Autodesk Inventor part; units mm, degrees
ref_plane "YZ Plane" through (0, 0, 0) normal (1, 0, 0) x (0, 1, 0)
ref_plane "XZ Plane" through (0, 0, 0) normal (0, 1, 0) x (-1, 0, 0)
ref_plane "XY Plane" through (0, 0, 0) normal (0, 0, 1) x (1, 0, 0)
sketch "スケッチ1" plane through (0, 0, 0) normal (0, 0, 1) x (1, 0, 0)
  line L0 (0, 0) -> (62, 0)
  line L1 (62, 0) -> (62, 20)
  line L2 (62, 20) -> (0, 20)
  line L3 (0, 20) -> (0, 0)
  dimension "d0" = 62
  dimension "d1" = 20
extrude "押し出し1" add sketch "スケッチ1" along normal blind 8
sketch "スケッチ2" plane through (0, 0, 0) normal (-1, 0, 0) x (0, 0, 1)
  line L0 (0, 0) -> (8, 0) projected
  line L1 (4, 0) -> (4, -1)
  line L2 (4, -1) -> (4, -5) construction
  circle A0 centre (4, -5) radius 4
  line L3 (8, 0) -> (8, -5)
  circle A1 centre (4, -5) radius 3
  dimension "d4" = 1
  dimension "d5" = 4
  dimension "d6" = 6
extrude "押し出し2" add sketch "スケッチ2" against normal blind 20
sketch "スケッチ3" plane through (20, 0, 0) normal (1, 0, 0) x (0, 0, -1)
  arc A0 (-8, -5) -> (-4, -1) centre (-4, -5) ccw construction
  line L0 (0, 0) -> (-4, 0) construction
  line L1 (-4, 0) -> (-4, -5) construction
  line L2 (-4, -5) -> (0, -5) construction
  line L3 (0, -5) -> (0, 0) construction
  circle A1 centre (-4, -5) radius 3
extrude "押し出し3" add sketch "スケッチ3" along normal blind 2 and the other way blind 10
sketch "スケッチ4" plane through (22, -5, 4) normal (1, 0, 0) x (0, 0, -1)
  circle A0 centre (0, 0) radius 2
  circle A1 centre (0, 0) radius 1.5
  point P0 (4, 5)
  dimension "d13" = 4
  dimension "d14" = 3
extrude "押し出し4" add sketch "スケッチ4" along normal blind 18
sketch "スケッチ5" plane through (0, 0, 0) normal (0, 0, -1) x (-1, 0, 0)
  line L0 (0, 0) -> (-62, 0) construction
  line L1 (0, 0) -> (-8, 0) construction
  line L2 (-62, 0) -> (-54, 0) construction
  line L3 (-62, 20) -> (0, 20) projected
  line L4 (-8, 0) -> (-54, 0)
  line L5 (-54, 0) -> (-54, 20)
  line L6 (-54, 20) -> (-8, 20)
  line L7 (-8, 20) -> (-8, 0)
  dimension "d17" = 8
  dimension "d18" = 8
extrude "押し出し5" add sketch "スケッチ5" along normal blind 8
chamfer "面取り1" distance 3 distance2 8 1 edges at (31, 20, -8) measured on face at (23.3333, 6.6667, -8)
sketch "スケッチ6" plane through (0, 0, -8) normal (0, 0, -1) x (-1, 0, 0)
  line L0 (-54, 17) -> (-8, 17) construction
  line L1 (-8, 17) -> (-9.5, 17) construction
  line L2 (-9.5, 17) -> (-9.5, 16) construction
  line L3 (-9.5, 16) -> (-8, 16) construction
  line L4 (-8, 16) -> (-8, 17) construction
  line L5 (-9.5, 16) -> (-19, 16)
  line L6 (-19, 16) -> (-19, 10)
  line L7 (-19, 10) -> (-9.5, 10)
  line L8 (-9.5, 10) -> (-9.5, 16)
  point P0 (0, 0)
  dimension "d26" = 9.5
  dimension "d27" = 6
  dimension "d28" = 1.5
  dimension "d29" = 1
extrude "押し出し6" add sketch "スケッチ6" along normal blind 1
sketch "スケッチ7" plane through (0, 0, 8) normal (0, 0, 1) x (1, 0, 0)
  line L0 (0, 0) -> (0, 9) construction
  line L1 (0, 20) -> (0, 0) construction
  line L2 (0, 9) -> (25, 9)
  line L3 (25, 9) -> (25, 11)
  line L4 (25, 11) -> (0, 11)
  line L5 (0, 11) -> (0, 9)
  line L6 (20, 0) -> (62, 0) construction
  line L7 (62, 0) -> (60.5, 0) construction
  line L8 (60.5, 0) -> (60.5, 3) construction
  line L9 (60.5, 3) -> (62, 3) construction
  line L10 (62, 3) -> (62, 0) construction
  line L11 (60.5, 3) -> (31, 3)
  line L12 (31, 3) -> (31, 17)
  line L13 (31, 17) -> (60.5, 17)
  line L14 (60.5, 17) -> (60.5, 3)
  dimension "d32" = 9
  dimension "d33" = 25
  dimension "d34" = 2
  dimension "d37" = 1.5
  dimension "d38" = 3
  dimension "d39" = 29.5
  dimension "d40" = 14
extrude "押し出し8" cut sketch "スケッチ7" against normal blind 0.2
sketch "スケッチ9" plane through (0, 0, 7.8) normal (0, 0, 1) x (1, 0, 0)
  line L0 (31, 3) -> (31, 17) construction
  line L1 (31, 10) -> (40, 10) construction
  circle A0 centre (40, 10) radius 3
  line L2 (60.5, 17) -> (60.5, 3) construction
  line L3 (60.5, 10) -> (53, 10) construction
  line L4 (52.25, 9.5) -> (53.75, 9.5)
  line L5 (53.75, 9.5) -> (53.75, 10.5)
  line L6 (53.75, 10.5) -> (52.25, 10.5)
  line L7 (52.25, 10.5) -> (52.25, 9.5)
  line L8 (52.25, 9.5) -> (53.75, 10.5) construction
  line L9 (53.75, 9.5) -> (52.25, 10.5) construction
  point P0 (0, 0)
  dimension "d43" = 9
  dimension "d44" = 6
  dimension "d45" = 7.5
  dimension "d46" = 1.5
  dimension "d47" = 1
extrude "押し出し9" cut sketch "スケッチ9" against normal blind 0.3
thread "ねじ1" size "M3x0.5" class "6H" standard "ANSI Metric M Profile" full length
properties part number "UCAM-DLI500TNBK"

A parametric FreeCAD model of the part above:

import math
import FreeCAD as App
import Part
import Sketcher


def edges_at(feature, points):
    """Names of the edges that pass closest to the given points."""
    edges = feature.Shape.Edges
    near = lambda p: min(range(len(edges)), key=lambda i: edges[i].distToShape(Part.Vertex(*p))[0])
    return sorted({f"Edge{near(p) + 1}" for p in points})

doc = App.newDocument("Part")
params = doc.addObject("Spreadsheet::Sheet", "Params")
for row, (alias, value) in enumerate([
    ("sketch1_width", "62 mm"),
    ("sketch1_height", "20 mm"),
    ("pad1_length", "8 mm"),
    ("sketch2_diameter", "6 mm"),
    ("sketch2_radius", "4 mm"),
    ("sketch2_width", "1 mm"),
    ("pad2_length", "20 mm"),
    ("sketch3_diameter", "6 mm"),
    ("pad3_length", "2 mm"),
    ("pad3_length2", "10 mm"),
    ("sketch4_diameter", "4 mm"),
    ("sketch4_diameter2", "3 mm"),
    ("pad4_length", "18 mm"),
    ("sketch5_width", "46 mm"),
    ("sketch5_height", "20 mm"),
    ("pad5_length", "8 mm"),
    ("chamfer_size", "3 mm"),
    ("chamfer_size2", "8 mm"),
    ("sketch6_height", "6 mm"),
    ("sketch6_width", "9.5 mm"),
    ("pad6_length", "1 mm"),
    ("sketch7_width", "25 mm"),
    ("sketch7_height", "2 mm"),
    ("sketch7_height2", "14 mm"),
    ("sketch7_width2", "29.5 mm"),
    ("pocket1_length", "0.2 mm"),
    ("sketch8_diameter", "6 mm"),
    ("sketch8_height", "1 mm"),
    ("sketch8_width", "1.5 mm"),
    ("pocket2_length", "0.3 mm"),
], start=1):
    params.set(f"A{row}", alias)
    params.set(f"B{row}", "=" + value)
    params.setAlias(f"B{row}", alias)

body = doc.addObject("PartDesign::Body", "Body")

sketch1 = body.newObject("Sketcher::SketchObject", "Sketch")
sketch1.AttachmentSupport = (doc.getObject("XY_Plane"), [""])
sketch1.MapMode = "FlatFace"
sketch1.addGeometry(Part.LineSegment(App.Vector(0, 20, 0), App.Vector(0, 0, 0)), False)
sketch1.addGeometry(Part.LineSegment(App.Vector(0, 0, 0), App.Vector(62, 0, 0)), False)
sketch1.addGeometry(Part.LineSegment(App.Vector(62, 0, 0), App.Vector(62, 20, 0)), False)
sketch1.addGeometry(Part.LineSegment(App.Vector(62, 20, 0), App.Vector(0, 20, 0)), False)
sketch1.addConstraint(Sketcher.Constraint("Coincident", 0, 2, 1, 1))
sketch1.addConstraint(Sketcher.Constraint("Coincident", 1, 2, 2, 1))
sketch1.addConstraint(Sketcher.Constraint("Coincident", 2, 2, 3, 1))
sketch1.addConstraint(Sketcher.Constraint("Coincident", 3, 2, 0, 1))
sketch1.addConstraint(Sketcher.Constraint("Vertical", 0))
sketch1.addConstraint(Sketcher.Constraint("Horizontal", 1))
sketch1.addConstraint(Sketcher.Constraint("Vertical", 2))
sketch1.addConstraint(Sketcher.Constraint("Horizontal", 3))
sketch1.addConstraint(Sketcher.Constraint("Coincident", 0, 2, -1, 1))
sketch1.addConstraint(Sketcher.Constraint("DistanceX", 1, 1, 1, 2, 62.0))
sketch1.addConstraint(Sketcher.Constraint("DistanceY", 0, 2, 0, 1, 20.0))
sketch1.setExpression("Constraints[9]", "Params.sketch1_width")
sketch1.setExpression("Constraints[10]", "Params.sketch1_height")
pad1 = body.newObject("PartDesign::Pad", "Pad")
pad1.Profile = sketch1
pad1.setExpression("Length", "Params.pad1_length")

sketch2 = body.newObject("Sketcher::SketchObject", "Sketch001")
sketch2.AttachmentSupport = (doc.getObject("YZ_Plane"), [""])
sketch2.MapMode = "FlatFace"
sketch2.addGeometry(Part.LineSegment(App.Vector(0, 8, 0), App.Vector(0, 4, 0)), False)
sketch2.addGeometry(Part.LineSegment(App.Vector(0, 4, 0), App.Vector(-1, 4, 0)), False)
sketch2.addGeometry(Part.ArcOfCircle(Part.Circle(App.Vector(-5, 4, 0), App.Vector(0, 0, 1), 4), math.radians(90), math.radians(360)), False)
sketch2.addGeometry(Part.LineSegment(App.Vector(-5, 8, 0), App.Vector(0, 8, 0)), False)
sketch2.addGeometry(Part.Circle(App.Vector(-5, 4, 0), App.Vector(0, 0, 1), 3), False)
sketch2.addConstraint(Sketcher.Constraint("Coincident", 0, 2, 1, 1))
sketch2.addConstraint(Sketcher.Constraint("Coincident", 1, 2, 2, 2))
sketch2.addConstraint(Sketcher.Constraint("Tangent", 2, 1, 3, 1))
sketch2.addConstraint(Sketcher.Constraint("Coincident", 3, 2, 0, 1))
sketch2.addConstraint(Sketcher.Constraint("Vertical", 0))
sketch2.addConstraint(Sketcher.Constraint("Horizontal", 1))
sketch2.addConstraint(Sketcher.Constraint("Horizontal", 3))
sketch2.addConstraint(Sketcher.Constraint("Coincident", 4, 3, 2, 3))
sketch2.addConstraint(Sketcher.Constraint("PointOnObject", 0, 2, -2))
sketch2.addConstraint(Sketcher.Constraint("Horizontal", 4, 3, 0, 2))
sketch2.addConstraint(Sketcher.Constraint("Diameter", 4, 6.0))
sketch2.addConstraint(Sketcher.Constraint("Radius", 2, 4.0))
sketch2.addConstraint(Sketcher.Constraint("DistanceX", 1, 2, 1, 1, 1.0))
sketch2.addConstraint(Sketcher.Constraint("DistanceY", -1, 1, 2, 3, 4.0))
sketch2.setExpression("Constraints[10]", "Params.sketch2_diameter")
sketch2.setExpression("Constraints[11]", "Params.sketch2_radius")
sketch2.setExpression("Constraints[12]", "Params.sketch2_width")
pad2 = body.newObject("PartDesign::Pad", "Pad001")
pad2.Profile = sketch2
pad2.setExpression("Length", "Params.pad2_length")

sketch3 = body.newObject("Sketcher::SketchObject", "Sketch002")
sketch3.AttachmentSupport = (doc.getObject("YZ_Plane"), [""])
sketch3.MapMode = "FlatFace"
sketch3.AttachmentOffset = App.Placement(App.Vector(0, 0, 20), App.Rotation())
sketch3.addGeometry(Part.Circle(App.Vector(-5, 4, 0), App.Vector(0, 0, 1), 3), False)
sketch3.addConstraint(Sketcher.Constraint("Diameter", 0, 6.0))
sketch3.addConstraint(Sketcher.Constraint("DistanceX", 0, 3, -1, 1, 5.0))
sketch3.addConstraint(Sketcher.Constraint("DistanceY", -1, 1, 0, 3, 4.0))
sketch3.setExpression("Constraints[0]", "Params.sketch3_diameter")
pad3 = body.newObject("PartDesign::Pad", "Pad002")
pad3.Profile = sketch3
pad3.Type = "TwoLengths"
pad3.setExpression("Length", "Params.pad3_length")
pad3.setExpression("Length2", "Params.pad3_length2")

sketch4 = body.newObject("Sketcher::SketchObject", "Sketch003")
sketch4.AttachmentSupport = (doc.getObject("YZ_Plane"), [""])
sketch4.MapMode = "FlatFace"
sketch4.AttachmentOffset = App.Placement(App.Vector(0, 0, 22), App.Rotation())
sketch4.addGeometry(Part.Circle(App.Vector(-5, 4, 0), App.Vector(0, 0, 1), 2), False)
sketch4.addGeometry(Part.Circle(App.Vector(-5, 4, 0), App.Vector(0, 0, 1), 1.5), False)
sketch4.addConstraint(Sketcher.Constraint("Coincident", 1, 3, 0, 3))
sketch4.addConstraint(Sketcher.Constraint("Diameter", 0, 4.0))
sketch4.addConstraint(Sketcher.Constraint("Diameter", 1, 3.0))
sketch4.addConstraint(Sketcher.Constraint("DistanceY", -1, 1, 0, 3, 4.0))
sketch4.addConstraint(Sketcher.Constraint("DistanceX", 0, 3, -1, 1, 5.0))
sketch4.setExpression("Constraints[1]", "Params.sketch4_diameter")
sketch4.setExpression("Constraints[2]", "Params.sketch4_diameter2")
pad4 = body.newObject("PartDesign::Pad", "Pad003")
pad4.Profile = sketch4
pad4.setExpression("Length", "Params.pad4_length")

sketch5 = body.newObject("Sketcher::SketchObject", "Sketch004")
sketch5.AttachmentSupport = (doc.getObject("XY_Plane"), [""])
sketch5.MapMode = "FlatFace"
sketch5.addGeometry(Part.LineSegment(App.Vector(8, 20, 0), App.Vector(54, 20, 0)), False)
sketch5.addGeometry(Part.LineSegment(App.Vector(54, 20, 0), App.Vector(54, 0, 0)), False)
sketch5.addGeometry(Part.LineSegment(App.Vector(54, 0, 0), App.Vector(8, 0, 0)), False)
sketch5.addGeometry(Part.LineSegment(App.Vector(8, 0, 0), App.Vector(8, 20, 0)), False)
sketch5.addConstraint(Sketcher.Constraint("Coincident", 0, 2, 1, 1))
sketch5.addConstraint(Sketcher.Constraint("Coincident", 1, 2, 2, 1))
sketch5.addConstraint(Sketcher.Constraint("Coincident", 2, 2, 3, 1))
sketch5.addConstraint(Sketcher.Constraint("Coincident", 3, 2, 0, 1))
sketch5.addConstraint(Sketcher.Constraint("Horizontal", 0))
sketch5.addConstraint(Sketcher.Constraint("Vertical", 1))
sketch5.addConstraint(Sketcher.Constraint("Horizontal", 2))
sketch5.addConstraint(Sketcher.Constraint("Vertical", 3))
sketch5.addConstraint(Sketcher.Constraint("PointOnObject", 1, 2, -1))
sketch5.addConstraint(Sketcher.Constraint("DistanceX", -1, 1, 2, 2, 8.0))
sketch5.addConstraint(Sketcher.Constraint("DistanceX", 0, 1, 0, 2, 46.0))
sketch5.addConstraint(Sketcher.Constraint("DistanceY", 1, 2, 1, 1, 20.0))
sketch5.setExpression("Constraints[10]", "Params.sketch5_width")
sketch5.setExpression("Constraints[11]", "Params.sketch5_height")
pad5 = body.newObject("PartDesign::Pad", "Pad004")
pad5.Profile = sketch5
pad5.setExpression("Length", "Params.pad5_length")
pad5.Reversed = True
doc.recompute()

chamfer = body.newObject("PartDesign::Chamfer", "Chamfer")
chamfer.Base = (pad5, edges_at(pad5, [(31, 20, -8)]))
chamfer.ChamferType = "Two distances"
chamfer.setExpression("Size", "Params.chamfer_size")
chamfer.setExpression("Size2", "Params.chamfer_size2")

sketch6 = body.newObject("Sketcher::SketchObject", "Sketch005")
sketch6.AttachmentSupport = (doc.getObject("XY_Plane"), [""])
sketch6.MapMode = "FlatFace"
sketch6.AttachmentOffset = App.Placement(App.Vector(0, 0, -8), App.Rotation())
sketch6.addGeometry(Part.LineSegment(App.Vector(9.5, 10, 0), App.Vector(9.5, 16, 0)), False)
sketch6.addGeometry(Part.LineSegment(App.Vector(9.5, 16, 0), App.Vector(19, 16, 0)), False)
sketch6.addGeometry(Part.LineSegment(App.Vector(19, 16, 0), App.Vector(19, 10, 0)), False)
sketch6.addGeometry(Part.LineSegment(App.Vector(19, 10, 0), App.Vector(9.5, 10, 0)), False)
sketch6.addConstraint(Sketcher.Constraint("Coincident", 0, 2, 1, 1))
sketch6.addConstraint(Sketcher.Constraint("Coincident", 1, 2, 2, 1))
sketch6.addConstraint(Sketcher.Constraint("Coincident", 2, 2, 3, 1))
sketch6.addConstraint(Sketcher.Constraint("Coincident", 3, 2, 0, 1))
sketch6.addConstraint(Sketcher.Constraint("Vertical", 0))
sketch6.addConstraint(Sketcher.Constraint("Horizontal", 1))
sketch6.addConstraint(Sketcher.Constraint("Vertical", 2))
sketch6.addConstraint(Sketcher.Constraint("Horizontal", 3))
sketch6.addConstraint(Sketcher.Constraint("DistanceY", 0, 1, 0, 2, 6.0))
sketch6.addConstraint(Sketcher.Constraint("DistanceX", 1, 1, 1, 2, 9.5))
sketch6.addConstraint(Sketcher.Constraint("DistanceX", -1, 1, 0, 2, 9.5))
sketch6.addConstraint(Sketcher.Constraint("DistanceY", -1, 1, 0, 2, 16.0))
sketch6.setExpression("Constraints[8]", "Params.sketch6_height")
sketch6.setExpression("Constraints[9]", "Params.sketch6_width")
pad6 = body.newObject("PartDesign::Pad", "Pad005")
pad6.Profile = sketch6
pad6.setExpression("Length", "Params.pad6_length")
pad6.Reversed = True

sketch7 = body.newObject("Sketcher::SketchObject", "Sketch006")
sketch7.AttachmentSupport = (doc.getObject("XY_Plane"), [""])
sketch7.MapMode = "FlatFace"
sketch7.AttachmentOffset = App.Placement(App.Vector(0, 0, 8), App.Rotation())
sketch7.addGeometry(Part.LineSegment(App.Vector(0, 11, 0), App.Vector(0, 9, 0)), False)
sketch7.addGeometry(Part.LineSegment(App.Vector(0, 9, 0), App.Vector(25, 9, 0)), False)
sketch7.addGeometry(Part.LineSegment(App.Vector(25, 9, 0), App.Vector(25, 11, 0)), False)
sketch7.addGeometry(Part.LineSegment(App.Vector(25, 11, 0), App.Vector(0, 11, 0)), False)
sketch7.addGeometry(Part.LineSegment(App.Vector(31, 3, 0), App.Vector(60.5, 3, 0)), False)
sketch7.addGeometry(Part.LineSegment(App.Vector(60.5, 3, 0), App.Vector(60.5, 17, 0)), False)
sketch7.addGeometry(Part.LineSegment(App.Vector(60.5, 17, 0), App.Vector(31, 17, 0)), False)
sketch7.addGeometry(Part.LineSegment(App.Vector(31, 17, 0), App.Vector(31, 3, 0)), False)
sketch7.addConstraint(Sketcher.Constraint("Coincident", 0, 2, 1, 1))
sketch7.addConstraint(Sketcher.Constraint("Coincident", 1, 2, 2, 1))
sketch7.addConstraint(Sketcher.Constraint("Coincident", 2, 2, 3, 1))
sketch7.addConstraint(Sketcher.Constraint("Coincident", 3, 2, 0, 1))
sketch7.addConstraint(Sketcher.Constraint("Coincident", 4, 2, 5, 1))
sketch7.addConstraint(Sketcher.Constraint("Coincident", 5, 2, 6, 1))
sketch7.addConstraint(Sketcher.Constraint("Coincident", 6, 2, 7, 1))
sketch7.addConstraint(Sketcher.Constraint("Coincident", 7, 2, 4, 1))
sketch7.addConstraint(Sketcher.Constraint("Vertical", 0))
sketch7.addConstraint(Sketcher.Constraint("Horizontal", 1))
sketch7.addConstraint(Sketcher.Constraint("Vertical", 2))
sketch7.addConstraint(Sketcher.Constraint("Horizontal", 3))
sketch7.addConstraint(Sketcher.Constraint("Horizontal", 4))
sketch7.addConstraint(Sketcher.Constraint("Vertical", 5))
sketch7.addConstraint(Sketcher.Constraint("Horizontal", 6))
sketch7.addConstraint(Sketcher.Constraint("Vertical", 7))
sketch7.addConstraint(Sketcher.Constraint("PointOnObject", 0, 2, -2))
sketch7.addConstraint(Sketcher.Constraint("DistanceX", 1, 1, 1, 2, 25.0))
sketch7.addConstraint(Sketcher.Constraint("DistanceY", 0, 2, 0, 1, 2.0))
sketch7.addConstraint(Sketcher.Constraint("DistanceY", 5, 1, 5, 2, 14.0))
sketch7.addConstraint(Sketcher.Constraint("DistanceX", 4, 1, 4, 2, 29.5))
sketch7.addConstraint(Sketcher.Constraint("DistanceY", -1, 1, 0, 2, 9.0))
sketch7.addConstraint(Sketcher.Constraint("DistanceY", -1, 1, 4, 2, 3.0))
sketch7.addConstraint(Sketcher.Constraint("DistanceX", -1, 1, 6, 2, 31.0))
sketch7.setExpression("Constraints[17]", "Params.sketch7_width")
sketch7.setExpression("Constraints[18]", "Params.sketch7_height")
sketch7.setExpression("Constraints[19]", "Params.sketch7_height2")
sketch7.setExpression("Constraints[20]", "Params.sketch7_width2")
pocket1 = body.newObject("PartDesign::Pocket", "Pocket")
pocket1.Profile = sketch7
pocket1.setExpression("Length", "Params.pocket1_length")

sketch8 = body.newObject("Sketcher::SketchObject", "Sketch007")
sketch8.AttachmentSupport = (doc.getObject("XY_Plane"), [""])
sketch8.MapMode = "FlatFace"
sketch8.AttachmentOffset = App.Placement(App.Vector(0, 0, 7.8), App.Rotation())
sketch8.addGeometry(Part.Circle(App.Vector(40, 10, 0), App.Vector(0, 0, 1), 3), False)
sketch8.addGeometry(Part.LineSegment(App.Vector(52.25, 10.5, 0), App.Vector(52.25, 9.5, 0)), False)
sketch8.addGeometry(Part.LineSegment(App.Vector(52.25, 9.5, 0), App.Vector(53.75, 9.5, 0)), False)
sketch8.addGeometry(Part.LineSegment(App.Vector(53.75, 9.5, 0), App.Vector(53.75, 10.5, 0)), False)
sketch8.addGeometry(Part.LineSegment(App.Vector(53.75, 10.5, 0), App.Vector(52.25, 10.5, 0)), False)
sketch8.addConstraint(Sketcher.Constraint("Coincident", 1, 2, 2, 1))
sketch8.addConstraint(Sketcher.Constraint("Coincident", 2, 2, 3, 1))
sketch8.addConstraint(Sketcher.Constraint("Coincident", 3, 2, 4, 1))
sketch8.addConstraint(Sketcher.Constraint("Coincident", 4, 2, 1, 1))
sketch8.addConstraint(Sketcher.Constraint("Vertical", 1))
sketch8.addConstraint(Sketcher.Constraint("Horizontal", 2))
sketch8.addConstraint(Sketcher.Constraint("Vertical", 3))
sketch8.addConstraint(Sketcher.Constraint("Horizontal", 4))
sketch8.addConstraint(Sketcher.Constraint("Diameter", 0, 6.0))
sketch8.addConstraint(Sketcher.Constraint("DistanceY", 1, 2, 1, 1, 1.0))
sketch8.addConstraint(Sketcher.Constraint("DistanceX", 2, 1, 2, 2, 1.5))
sketch8.addConstraint(Sketcher.Constraint("DistanceX", -1, 1, 0, 3, 40.0))
sketch8.addConstraint(Sketcher.Constraint("DistanceY", -1, 1, 0, 3, 10.0))
sketch8.addConstraint(Sketcher.Constraint("DistanceY", -1, 1, 1, 2, 9.5))
sketch8.addConstraint(Sketcher.Constraint("DistanceX", -1, 1, 1, 2, 52.25))
sketch8.setExpression("Constraints[8]", "Params.sketch8_diameter")
sketch8.setExpression("Constraints[9]", "Params.sketch8_height")
sketch8.setExpression("Constraints[10]", "Params.sketch8_width")
pocket2 = body.newObject("PartDesign::Pocket", "Pocket001")
pocket2.Profile = sketch8
pocket2.setExpression("Length", "Params.pocket2_length")

doc.recompute()
